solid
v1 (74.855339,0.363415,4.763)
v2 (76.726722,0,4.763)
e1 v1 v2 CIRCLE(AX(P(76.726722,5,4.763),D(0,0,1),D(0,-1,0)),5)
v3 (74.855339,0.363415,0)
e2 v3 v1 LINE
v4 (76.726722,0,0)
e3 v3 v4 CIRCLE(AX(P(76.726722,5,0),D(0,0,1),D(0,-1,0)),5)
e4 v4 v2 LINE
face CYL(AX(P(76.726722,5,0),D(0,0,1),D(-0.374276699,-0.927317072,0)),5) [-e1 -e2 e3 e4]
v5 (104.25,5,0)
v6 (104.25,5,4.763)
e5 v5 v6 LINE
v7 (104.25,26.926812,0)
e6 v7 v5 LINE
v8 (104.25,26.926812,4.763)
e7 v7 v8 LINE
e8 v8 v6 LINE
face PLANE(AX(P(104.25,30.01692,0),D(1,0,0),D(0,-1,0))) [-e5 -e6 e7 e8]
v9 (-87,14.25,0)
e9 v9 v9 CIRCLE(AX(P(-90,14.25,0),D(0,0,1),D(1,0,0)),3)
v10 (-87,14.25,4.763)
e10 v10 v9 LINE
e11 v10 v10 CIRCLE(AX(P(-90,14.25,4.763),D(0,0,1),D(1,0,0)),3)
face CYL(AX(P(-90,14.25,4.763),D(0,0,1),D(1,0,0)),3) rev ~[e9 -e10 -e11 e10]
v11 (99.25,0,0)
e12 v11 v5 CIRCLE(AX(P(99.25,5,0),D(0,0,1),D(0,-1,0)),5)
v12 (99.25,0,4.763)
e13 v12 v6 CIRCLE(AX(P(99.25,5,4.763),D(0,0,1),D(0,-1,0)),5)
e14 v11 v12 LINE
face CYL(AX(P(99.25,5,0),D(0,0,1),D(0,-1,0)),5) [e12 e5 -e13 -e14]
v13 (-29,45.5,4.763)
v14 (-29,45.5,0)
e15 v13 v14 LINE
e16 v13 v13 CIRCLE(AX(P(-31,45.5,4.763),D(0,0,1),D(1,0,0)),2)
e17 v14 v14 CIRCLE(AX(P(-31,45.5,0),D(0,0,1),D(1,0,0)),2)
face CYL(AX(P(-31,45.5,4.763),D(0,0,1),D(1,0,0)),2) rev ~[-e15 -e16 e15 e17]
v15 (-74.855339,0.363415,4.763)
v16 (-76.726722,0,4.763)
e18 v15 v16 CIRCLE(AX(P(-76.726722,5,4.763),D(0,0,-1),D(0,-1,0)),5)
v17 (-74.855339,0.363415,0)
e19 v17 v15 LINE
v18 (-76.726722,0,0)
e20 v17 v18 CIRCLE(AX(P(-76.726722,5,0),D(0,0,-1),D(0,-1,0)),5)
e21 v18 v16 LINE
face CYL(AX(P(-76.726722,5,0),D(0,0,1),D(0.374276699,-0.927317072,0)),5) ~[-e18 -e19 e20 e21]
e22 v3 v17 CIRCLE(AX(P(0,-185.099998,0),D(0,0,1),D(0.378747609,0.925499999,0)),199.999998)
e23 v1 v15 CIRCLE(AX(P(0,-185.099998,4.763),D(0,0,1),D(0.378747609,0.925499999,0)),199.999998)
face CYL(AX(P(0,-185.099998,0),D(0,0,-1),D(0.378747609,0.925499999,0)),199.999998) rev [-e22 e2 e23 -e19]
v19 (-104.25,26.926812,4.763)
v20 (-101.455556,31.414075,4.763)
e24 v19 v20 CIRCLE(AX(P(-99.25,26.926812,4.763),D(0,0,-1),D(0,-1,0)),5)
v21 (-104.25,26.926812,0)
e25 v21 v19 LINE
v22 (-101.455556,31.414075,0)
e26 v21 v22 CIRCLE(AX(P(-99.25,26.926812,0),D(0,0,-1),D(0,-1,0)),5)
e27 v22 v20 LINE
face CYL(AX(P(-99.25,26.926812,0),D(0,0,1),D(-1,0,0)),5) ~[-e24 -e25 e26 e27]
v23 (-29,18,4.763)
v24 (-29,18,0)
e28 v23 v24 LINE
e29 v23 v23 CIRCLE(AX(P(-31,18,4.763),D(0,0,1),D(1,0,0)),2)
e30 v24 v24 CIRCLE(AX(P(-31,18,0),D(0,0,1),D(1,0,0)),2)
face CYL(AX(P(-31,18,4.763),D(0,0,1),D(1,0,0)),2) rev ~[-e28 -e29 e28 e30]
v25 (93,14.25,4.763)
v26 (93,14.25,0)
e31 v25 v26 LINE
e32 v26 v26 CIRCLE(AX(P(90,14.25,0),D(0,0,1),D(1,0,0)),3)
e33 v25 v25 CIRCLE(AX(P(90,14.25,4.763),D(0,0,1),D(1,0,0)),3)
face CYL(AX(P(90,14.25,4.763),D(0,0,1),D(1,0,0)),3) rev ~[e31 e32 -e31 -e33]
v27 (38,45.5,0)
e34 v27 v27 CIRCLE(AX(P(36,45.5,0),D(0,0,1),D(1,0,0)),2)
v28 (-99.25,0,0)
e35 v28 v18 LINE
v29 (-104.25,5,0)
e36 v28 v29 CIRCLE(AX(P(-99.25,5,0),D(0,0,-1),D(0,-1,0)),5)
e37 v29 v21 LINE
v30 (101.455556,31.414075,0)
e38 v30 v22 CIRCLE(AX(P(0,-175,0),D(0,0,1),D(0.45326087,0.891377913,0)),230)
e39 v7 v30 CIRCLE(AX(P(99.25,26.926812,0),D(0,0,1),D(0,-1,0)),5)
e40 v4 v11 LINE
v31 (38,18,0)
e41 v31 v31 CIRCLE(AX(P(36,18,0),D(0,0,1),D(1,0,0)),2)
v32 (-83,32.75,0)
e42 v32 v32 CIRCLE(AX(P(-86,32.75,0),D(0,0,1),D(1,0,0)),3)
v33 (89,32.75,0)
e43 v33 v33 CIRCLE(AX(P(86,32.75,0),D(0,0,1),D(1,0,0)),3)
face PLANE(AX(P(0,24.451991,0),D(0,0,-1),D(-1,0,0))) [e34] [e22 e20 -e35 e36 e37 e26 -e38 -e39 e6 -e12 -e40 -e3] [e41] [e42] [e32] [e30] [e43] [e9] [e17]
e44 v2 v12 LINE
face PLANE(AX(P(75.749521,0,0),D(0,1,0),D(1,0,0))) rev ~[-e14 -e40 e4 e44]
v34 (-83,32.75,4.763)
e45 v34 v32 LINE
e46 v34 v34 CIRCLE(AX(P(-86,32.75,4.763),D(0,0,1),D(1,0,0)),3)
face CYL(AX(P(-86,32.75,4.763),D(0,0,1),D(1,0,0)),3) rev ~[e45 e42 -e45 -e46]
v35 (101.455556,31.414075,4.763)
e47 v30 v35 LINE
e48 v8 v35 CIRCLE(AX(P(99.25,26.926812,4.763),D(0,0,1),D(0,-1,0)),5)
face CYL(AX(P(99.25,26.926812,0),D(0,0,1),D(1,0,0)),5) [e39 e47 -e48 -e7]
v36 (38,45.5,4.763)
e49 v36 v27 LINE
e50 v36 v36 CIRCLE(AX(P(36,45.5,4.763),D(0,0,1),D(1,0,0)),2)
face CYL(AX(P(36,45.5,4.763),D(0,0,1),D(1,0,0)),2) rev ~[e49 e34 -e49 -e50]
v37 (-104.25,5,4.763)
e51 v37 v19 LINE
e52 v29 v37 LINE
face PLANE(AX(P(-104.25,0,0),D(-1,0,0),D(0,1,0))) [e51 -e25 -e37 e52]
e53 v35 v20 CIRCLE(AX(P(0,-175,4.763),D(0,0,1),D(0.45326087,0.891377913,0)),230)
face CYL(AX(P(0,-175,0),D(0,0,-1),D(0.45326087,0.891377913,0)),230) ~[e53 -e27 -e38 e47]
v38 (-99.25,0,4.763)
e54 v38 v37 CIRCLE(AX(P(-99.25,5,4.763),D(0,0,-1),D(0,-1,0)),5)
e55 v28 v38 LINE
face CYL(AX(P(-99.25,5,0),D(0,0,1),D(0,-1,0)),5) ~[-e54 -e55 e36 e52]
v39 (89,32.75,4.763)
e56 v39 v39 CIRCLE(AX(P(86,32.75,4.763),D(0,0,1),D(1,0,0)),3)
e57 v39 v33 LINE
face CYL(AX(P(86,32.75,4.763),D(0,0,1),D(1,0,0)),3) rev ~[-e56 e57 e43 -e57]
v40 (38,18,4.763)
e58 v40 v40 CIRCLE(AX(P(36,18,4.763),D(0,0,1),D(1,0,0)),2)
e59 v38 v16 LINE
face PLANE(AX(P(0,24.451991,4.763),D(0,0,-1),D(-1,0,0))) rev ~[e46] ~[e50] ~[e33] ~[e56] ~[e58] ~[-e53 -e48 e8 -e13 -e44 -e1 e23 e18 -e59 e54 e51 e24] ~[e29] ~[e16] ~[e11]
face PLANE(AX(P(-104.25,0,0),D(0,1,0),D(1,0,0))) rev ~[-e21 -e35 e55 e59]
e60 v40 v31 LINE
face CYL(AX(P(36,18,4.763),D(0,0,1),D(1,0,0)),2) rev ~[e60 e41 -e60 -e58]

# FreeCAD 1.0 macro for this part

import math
import FreeCAD as App
import Part
import Sketcher

V = App.Vector


def edges_at(feature, points):
    """Names of the edges that pass closest to the given points."""
    edges = feature.Shape.Edges
    near = lambda p: min(range(len(edges)), key=lambda i: edges[i].distToShape(Part.Vertex(*p))[0])
    return sorted({f"Edge{near(p) + 1}" for p in points})

doc = App.newDocument("Part")
body = doc.addObject("PartDesign::Body", "Body")

# Sketch on XY plane
sketch1 = body.newObject("Sketcher::SketchObject", "Sketch")
sketch1.AttachmentSupport = (doc.getObject("XY_Plane"), [""])
sketch1.MapMode = "FlatFace"
sketch1.addGeometry([
    Part.ArcOfCircle(Part.Circle(V(0, -185.099998, 0), V(0, 0, 1), 199.999998), math.radians(67.743872), math.radians(112.256128)),  # 0
    Part.LineSegment(V(75.749521, 0, 0), V(104.25, 0, 0)),  # 1
    Part.LineSegment(V(104.25, 0, 0), V(104.25, 30.01692, 0)),  # 2
    Part.ArcOfCircle(Part.Circle(V(0, -175, 0), V(0, 0, 1), 230), math.radians(63.046909), math.radians(116.953091)),  # 3
    Part.LineSegment(V(-104.25, 30.01692, 0), V(-104.25, 0, 0)),  # 4
    Part.LineSegment(V(-104.25, 0, 0), V(-75.749521, 0, 0)),  # 5
], False)
sketch1.addConstraint([
    Sketcher.Constraint("Coincident", 0, 1, 1, 1),
    Sketcher.Constraint("Coincident", 1, 2, 2, 1),
    Sketcher.Constraint("Coincident", 2, 2, 3, 1),
    Sketcher.Constraint("Coincident", 3, 2, 4, 1),
    Sketcher.Constraint("Coincident", 4, 2, 5, 1),
    Sketcher.Constraint("Coincident", 5, 2, 0, 2),
    Sketcher.Constraint("Horizontal", 1),
    Sketcher.Constraint("Vertical", 2),
    Sketcher.Constraint("Vertical", 4),
    Sketcher.Constraint("Horizontal", 5),
    Sketcher.Constraint("Symmetric", 1, 2, 4, 2, -1, 1),
    Sketcher.Constraint("Symmetric", 0, 1, 5, 2, -2),
    Sketcher.Constraint("PointOnObject", 3, 3, -2),
    Sketcher.Constraint("Radius", 3, 230.0),
    Sketcher.Constraint("DistanceY", 3, 3, -1, 1, 175.0),
    Sketcher.Constraint("DistanceX", 3, 2, 2, 2, 208.5),
    Sketcher.Constraint("Radius", 0, 199.999998),
    Sketcher.Constraint("DistanceX", 1, 1, 1, 2, 28.500479),
])
pad1 = body.newObject("PartDesign::Pad", "Pad")
pad1.Profile = sketch1
pad1.Length = 4.763

# Sketch on XY plane
sketch2 = body.newObject("Sketcher::SketchObject", "Sketch001")
sketch2.AttachmentSupport = (doc.getObject("XY_Plane"), [""])
sketch2.MapMode = "FlatFace"
sketch2.AttachmentOffset = App.Placement(V(0, 0, 4.763), App.Rotation())
sketch2.addGeometry([
    Part.Circle(V(-31, 45.5, 0), V(0, 0, 1), 2),  # 0
    Part.Circle(V(36, 45.5, 0), V(0, 0, 1), 2),  # 1
    Part.Circle(V(36, 18, 0), V(0, 0, 1), 2),  # 2
    Part.Circle(V(-31, 18, 0), V(0, 0, 1), 2),  # 3
    Part.Circle(V(-90, 14.25, 0), V(0, 0, 1), 3),  # 4
    Part.Circle(V(-86, 32.75, 0), V(0, 0, 1), 3),  # 5
    Part.Circle(V(86, 32.75, 0), V(0, 0, 1), 3),  # 6
    Part.Circle(V(90, 14.25, 0), V(0, 0, 1), 3),  # 7
], False)
sketch2.addConstraint([
    Sketcher.Constraint("Equal", 0, 1),
    Sketcher.Constraint("Equal", 1, 2),
    Sketcher.Constraint("Equal", 2, 3),
    Sketcher.Constraint("Equal", 4, 5),
    Sketcher.Constraint("Equal", 5, 6),
    Sketcher.Constraint("Equal", 6, 7),
    Sketcher.Constraint("Symmetric", 5, 3, 6, 3, -2),
    Sketcher.Constraint("Symmetric", 4, 3, 7, 3, -2),
    Sketcher.Constraint("Horizontal", 0, 3, 1, 3),
    Sketcher.Constraint("Horizontal", 2, 3, 3, 3),
    Sketcher.Constraint("Vertical", 1, 3, 2, 3),
    Sketcher.Constraint("Vertical", 0, 3, 3, 3),
    Sketcher.Constraint("Diameter", 0, 4.0),
    Sketcher.Constraint("Diameter", 4, 6.0),
    Sketcher.Constraint("DistanceX", 0, 3, -1, 1, 31.0),
    Sketcher.Constraint("DistanceX", -1, 1, 1, 3, 36.0),
    Sketcher.Constraint("DistanceY", -1, 1, 2, 3, 18.0),
    Sketcher.Constraint("DistanceX", 4, 3, -1, 1, 90.0),
    Sketcher.Constraint("DistanceX", 5, 3, -1, 1, 86.0),
    Sketcher.Constraint("DistanceY", -1, 1, 0, 3, 45.5),
    Sketcher.Constraint("DistanceY", 4, 3, 5, 3, 18.5),
    Sketcher.Constraint("DistanceY", -1, 1, 4, 3, 14.25),
])
pocket1 = body.newObject("PartDesign::Pocket", "Pocket")
pocket1.Profile = sketch2
pocket1.Type = "ThroughAll"
doc.recompute()

fillet = body.newObject("PartDesign::Fillet", "Fillet")
fillet.Base = (pocket1, edges_at(pocket1, [
    (-104.25, 30.017, 2.381),
    (-104.25, 0, 2.381),
    (104.25, 30.017, 2.381),
    (-75.75, 0, 2.381),
    (75.75, 0, 2.381),
    (104.25, 0, 2.381),
]))
fillet.Radius = 5

doc.recompute()
